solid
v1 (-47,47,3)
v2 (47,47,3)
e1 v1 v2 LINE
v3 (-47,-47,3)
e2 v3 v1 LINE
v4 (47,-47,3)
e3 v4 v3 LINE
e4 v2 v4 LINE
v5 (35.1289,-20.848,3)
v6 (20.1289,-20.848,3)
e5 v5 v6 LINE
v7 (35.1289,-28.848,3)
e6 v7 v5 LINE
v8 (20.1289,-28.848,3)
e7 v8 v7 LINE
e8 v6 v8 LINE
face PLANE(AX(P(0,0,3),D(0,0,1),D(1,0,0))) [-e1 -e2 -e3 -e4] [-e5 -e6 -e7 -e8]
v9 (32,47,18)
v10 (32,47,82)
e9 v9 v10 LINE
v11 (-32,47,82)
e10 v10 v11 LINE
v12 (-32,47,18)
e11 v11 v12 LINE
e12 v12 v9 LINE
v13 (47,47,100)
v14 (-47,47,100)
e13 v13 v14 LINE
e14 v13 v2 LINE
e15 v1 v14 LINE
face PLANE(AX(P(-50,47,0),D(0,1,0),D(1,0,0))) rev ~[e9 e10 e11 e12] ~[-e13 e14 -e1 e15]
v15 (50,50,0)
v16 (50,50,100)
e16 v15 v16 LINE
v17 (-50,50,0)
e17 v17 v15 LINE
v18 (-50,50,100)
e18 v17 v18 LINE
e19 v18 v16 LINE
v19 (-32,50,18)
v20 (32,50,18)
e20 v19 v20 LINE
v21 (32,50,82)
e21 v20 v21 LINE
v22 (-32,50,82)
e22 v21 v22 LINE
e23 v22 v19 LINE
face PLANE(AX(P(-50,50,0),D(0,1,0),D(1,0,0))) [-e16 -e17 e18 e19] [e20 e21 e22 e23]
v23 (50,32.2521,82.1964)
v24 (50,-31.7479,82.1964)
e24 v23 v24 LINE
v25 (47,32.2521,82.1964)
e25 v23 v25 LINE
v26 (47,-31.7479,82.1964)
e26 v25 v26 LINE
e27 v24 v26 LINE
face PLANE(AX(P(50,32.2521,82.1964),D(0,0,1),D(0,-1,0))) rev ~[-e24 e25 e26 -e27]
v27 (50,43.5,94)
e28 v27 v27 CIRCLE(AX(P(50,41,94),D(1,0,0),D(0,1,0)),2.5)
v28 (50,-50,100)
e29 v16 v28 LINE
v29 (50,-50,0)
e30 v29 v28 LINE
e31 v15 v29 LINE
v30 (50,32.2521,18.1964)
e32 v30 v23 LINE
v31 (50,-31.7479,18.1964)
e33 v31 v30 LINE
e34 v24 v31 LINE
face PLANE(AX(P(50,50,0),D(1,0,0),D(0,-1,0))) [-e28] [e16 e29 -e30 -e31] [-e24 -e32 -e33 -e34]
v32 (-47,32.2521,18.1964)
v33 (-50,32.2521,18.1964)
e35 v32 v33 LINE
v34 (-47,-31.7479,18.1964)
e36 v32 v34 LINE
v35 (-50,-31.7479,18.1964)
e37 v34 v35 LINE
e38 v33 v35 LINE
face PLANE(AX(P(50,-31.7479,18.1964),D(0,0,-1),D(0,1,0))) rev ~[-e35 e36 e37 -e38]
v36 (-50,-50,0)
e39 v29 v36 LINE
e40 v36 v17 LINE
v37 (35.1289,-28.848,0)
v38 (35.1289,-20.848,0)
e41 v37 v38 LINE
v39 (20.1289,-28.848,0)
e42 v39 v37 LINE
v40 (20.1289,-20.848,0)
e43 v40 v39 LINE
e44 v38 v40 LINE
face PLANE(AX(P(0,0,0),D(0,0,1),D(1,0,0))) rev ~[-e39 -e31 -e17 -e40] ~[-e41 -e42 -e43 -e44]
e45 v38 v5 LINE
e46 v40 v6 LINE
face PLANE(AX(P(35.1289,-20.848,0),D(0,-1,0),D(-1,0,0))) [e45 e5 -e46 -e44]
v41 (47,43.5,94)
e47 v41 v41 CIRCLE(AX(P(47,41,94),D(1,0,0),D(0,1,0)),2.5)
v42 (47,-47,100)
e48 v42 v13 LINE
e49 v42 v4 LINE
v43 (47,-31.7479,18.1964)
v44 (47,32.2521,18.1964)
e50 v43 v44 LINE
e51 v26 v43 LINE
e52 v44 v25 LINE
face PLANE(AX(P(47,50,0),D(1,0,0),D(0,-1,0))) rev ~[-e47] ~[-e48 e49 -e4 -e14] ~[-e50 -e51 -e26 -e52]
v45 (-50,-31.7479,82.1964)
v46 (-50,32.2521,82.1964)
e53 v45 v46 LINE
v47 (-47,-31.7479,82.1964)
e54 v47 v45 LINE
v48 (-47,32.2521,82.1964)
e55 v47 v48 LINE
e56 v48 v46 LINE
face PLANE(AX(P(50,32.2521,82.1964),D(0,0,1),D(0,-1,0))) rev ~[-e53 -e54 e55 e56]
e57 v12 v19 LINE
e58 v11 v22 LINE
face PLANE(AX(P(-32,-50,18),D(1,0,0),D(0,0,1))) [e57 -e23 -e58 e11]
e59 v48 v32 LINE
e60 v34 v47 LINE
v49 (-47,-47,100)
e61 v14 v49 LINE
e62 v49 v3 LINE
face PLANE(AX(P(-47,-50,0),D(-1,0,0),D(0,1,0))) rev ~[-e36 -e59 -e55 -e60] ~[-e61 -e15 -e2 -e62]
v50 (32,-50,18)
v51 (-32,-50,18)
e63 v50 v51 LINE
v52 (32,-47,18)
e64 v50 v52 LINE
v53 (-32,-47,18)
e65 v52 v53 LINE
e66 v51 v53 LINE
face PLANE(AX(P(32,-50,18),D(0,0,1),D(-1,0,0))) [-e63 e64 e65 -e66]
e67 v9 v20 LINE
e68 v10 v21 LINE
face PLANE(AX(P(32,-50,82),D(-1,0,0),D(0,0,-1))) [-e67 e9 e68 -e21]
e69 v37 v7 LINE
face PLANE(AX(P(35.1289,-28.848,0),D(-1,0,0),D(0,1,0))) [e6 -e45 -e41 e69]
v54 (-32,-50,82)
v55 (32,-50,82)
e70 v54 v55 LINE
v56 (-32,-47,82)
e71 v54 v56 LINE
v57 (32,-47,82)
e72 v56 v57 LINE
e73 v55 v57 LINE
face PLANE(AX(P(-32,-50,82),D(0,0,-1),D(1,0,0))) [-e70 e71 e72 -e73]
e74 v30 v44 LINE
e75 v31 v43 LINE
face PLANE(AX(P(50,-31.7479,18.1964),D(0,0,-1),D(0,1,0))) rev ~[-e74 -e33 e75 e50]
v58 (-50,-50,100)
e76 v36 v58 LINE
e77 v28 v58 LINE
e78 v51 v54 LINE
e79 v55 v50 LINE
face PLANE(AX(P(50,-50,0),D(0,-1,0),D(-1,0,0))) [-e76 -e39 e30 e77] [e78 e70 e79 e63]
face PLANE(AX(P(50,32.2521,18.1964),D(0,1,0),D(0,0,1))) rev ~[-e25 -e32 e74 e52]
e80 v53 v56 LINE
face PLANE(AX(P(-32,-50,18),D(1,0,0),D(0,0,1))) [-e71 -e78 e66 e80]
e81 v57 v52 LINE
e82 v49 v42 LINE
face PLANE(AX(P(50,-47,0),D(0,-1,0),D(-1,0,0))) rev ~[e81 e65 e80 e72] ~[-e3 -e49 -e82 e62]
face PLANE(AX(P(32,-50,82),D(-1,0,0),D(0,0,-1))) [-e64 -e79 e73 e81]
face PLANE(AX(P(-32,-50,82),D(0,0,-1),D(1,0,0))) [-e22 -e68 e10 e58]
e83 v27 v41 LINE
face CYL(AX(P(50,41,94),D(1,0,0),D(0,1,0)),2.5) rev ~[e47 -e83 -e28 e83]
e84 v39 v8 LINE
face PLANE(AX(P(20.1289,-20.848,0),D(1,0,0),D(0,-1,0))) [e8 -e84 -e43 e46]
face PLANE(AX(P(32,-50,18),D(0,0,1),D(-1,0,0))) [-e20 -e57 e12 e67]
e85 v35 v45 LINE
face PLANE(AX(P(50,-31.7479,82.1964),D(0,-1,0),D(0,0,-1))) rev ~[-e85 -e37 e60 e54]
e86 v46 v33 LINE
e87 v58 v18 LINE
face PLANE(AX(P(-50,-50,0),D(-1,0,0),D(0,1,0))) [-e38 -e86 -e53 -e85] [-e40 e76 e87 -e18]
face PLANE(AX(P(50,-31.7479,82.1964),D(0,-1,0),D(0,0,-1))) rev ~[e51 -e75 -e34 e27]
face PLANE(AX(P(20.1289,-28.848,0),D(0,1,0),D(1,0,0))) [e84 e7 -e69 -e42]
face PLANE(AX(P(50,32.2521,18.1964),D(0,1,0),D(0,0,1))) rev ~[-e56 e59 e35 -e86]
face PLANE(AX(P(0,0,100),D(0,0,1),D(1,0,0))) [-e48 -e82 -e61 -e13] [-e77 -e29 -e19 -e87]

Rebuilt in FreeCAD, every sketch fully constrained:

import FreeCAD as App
import Part
import Sketcher


def faces_at(feature, points):
    """Names of the faces that lie closest to the given points."""
    faces = feature.Shape.Faces
    near = lambda p: min(range(len(faces)), key=lambda i: faces[i].distToShape(Part.Vertex(*p))[0])
    return sorted({f"Face{near(p) + 1}" for p in points})

doc = App.newDocument("Part")
body = doc.addObject("PartDesign::Body", "Body")

# Sketch on XY plane
sketch1 = body.newObject("Sketcher::SketchObject", "Sketch")
sketch1.AttachmentSupport = (doc.getObject("XY_Plane"), [""])
sketch1.MapMode = "FlatFace"
sketch1.addGeometry([
    Part.LineSegment(App.Vector(50, 50, 0), App.Vector(-50, 50, 0)),
    Part.LineSegment(App.Vector(-50, 50, 0), App.Vector(-50, -50, 0)),
    Part.LineSegment(App.Vector(-50, -50, 0), App.Vector(50, -50, 0)),
    Part.LineSegment(App.Vector(50, -50, 0), App.Vector(50, 50, 0)),
], False)
sketch1.addConstraint([
    Sketcher.Constraint("Coincident", 0, 2, 1, 1),
    Sketcher.Constraint("Coincident", 1, 2, 2, 1),
    Sketcher.Constraint("Coincident", 2, 2, 3, 1),
    Sketcher.Constraint("Coincident", 3, 2, 0, 1),
    Sketcher.Constraint("Horizontal", 0),
    Sketcher.Constraint("Vertical", 1),
    Sketcher.Constraint("Horizontal", 2),
    Sketcher.Constraint("Vertical", 3),
    Sketcher.Constraint("Symmetric", 0, 2, 2, 2, -1, 1),
    Sketcher.Constraint("Equal", 2, 1),
    Sketcher.Constraint("DistanceX", 0, 2, 0, 1, 100.0),
])
pad1 = body.newObject("PartDesign::Pad", "Pad")
pad1.Profile = sketch1
pad1.Length = 100
doc.recompute()

thickness = body.newObject("PartDesign::Thickness", "Thickness")
thickness.Base = (pad1, faces_at(pad1, [(-16.667, 16.667, 100)]))
thickness.Value = 3
thickness.Reversed = True
thickness.Join = "Intersection"

# Sketch on YZ plane
sketch2 = body.newObject("Sketcher::SketchObject", "Sketch001")
sketch2.AttachmentSupport = (doc.getObject("YZ_Plane"), [""])
sketch2.MapMode = "FlatFace"
sketch2.AttachmentOffset = App.Placement(App.Vector(0, 0, 50), App.Rotation())
sketch2.addGeometry([
    Part.LineSegment(App.Vector(32, 18, 0), App.Vector(32, 82, 0)),
    Part.LineSegment(App.Vector(32, 82, 0), App.Vector(-32, 82, 0)),
    Part.LineSegment(App.Vector(-32, 82, 0), App.Vector(-32, 18, 0)),
    Part.LineSegment(App.Vector(-32, 18, 0), App.Vector(32, 18, 0)),
], False)
sketch2.addConstraint([
    Sketcher.Constraint("Coincident", 0, 2, 1, 1),
    Sketcher.Constraint("Coincident", 1, 2, 2, 1),
    Sketcher.Constraint("Coincident", 2, 2, 3, 1),
    Sketcher.Constraint("Coincident", 3, 2, 0, 1),
    Sketcher.Constraint("Vertical", 0),
    Sketcher.Constraint("Horizontal", 1),
    Sketcher.Constraint("Vertical", 2),
    Sketcher.Constraint("Horizontal", 3),
    Sketcher.Constraint("Equal", 3, 0),
    Sketcher.Constraint("DistanceX", 1, 2, 1, 1, 64.0),
    Sketcher.Constraint("DistanceX", -1, 1, 0, 2, 32.252),
    Sketcher.Constraint("DistanceY", -1, 1, 0, 2, 82.1964),
])
pocket1 = body.newObject("PartDesign::Pocket", "Pocket")
pocket1.Profile = sketch2
pocket1.Type = "ThroughAll"

# Sketch on XZ plane
sketch3 = body.newObject("Sketcher::SketchObject", "Sketch002")
sketch3.AttachmentSupport = (doc.getObject("XZ_Plane"), [""])
sketch3.MapMode = "FlatFace"
sketch3.AttachmentOffset = App.Placement(App.Vector(0, 0, 50), App.Rotation())
sketch3.addGeometry([
    Part.LineSegment(App.Vector(32, 82, 0), App.Vector(-32, 82, 0)),
    Part.LineSegment(App.Vector(-32, 82, 0), App.Vector(-32, 18, 0)),
    Part.LineSegment(App.Vector(-32, 18, 0), App.Vector(32, 18, 0)),
    Part.LineSegment(App.Vector(32, 18, 0), App.Vector(32, 82, 0)),
], False)
sketch3.addConstraint([
    Sketcher.Constraint("Coincident", 0, 2, 1, 1),
    Sketcher.Constraint("Coincident", 1, 2, 2, 1),
    Sketcher.Constraint("Coincident", 2, 2, 3, 1),
    Sketcher.Constraint("Coincident", 3, 2, 0, 1),
    Sketcher.Constraint("Horizontal", 0),
    Sketcher.Constraint("Vertical", 1),
    Sketcher.Constraint("Horizontal", 2),
    Sketcher.Constraint("Vertical", 3),
    Sketcher.Constraint("Equal", 2, 1),
    Sketcher.Constraint("DistanceX", 0, 2, 0, 1, 64.0),
    Sketcher.Constraint("DistanceX", 0, 2, -1, 1, 32.0),
    Sketcher.Constraint("DistanceY", -1, 1, 0, 2, 82.0),
])
pocket2 = body.newObject("PartDesign::Pocket", "Pocket001")
pocket2.Profile = sketch3
pocket2.Length = 110

# Sketch on XY plane
sketch4 = body.newObject("Sketcher::SketchObject", "Sketch003")
sketch4.AttachmentSupport = (doc.getObject("XY_Plane"), [""])
sketch4.MapMode = "FlatFace"
sketch4.addGeometry([
    Part.LineSegment(App.Vector(35, -29, 0), App.Vector(35, -21, 0)),
    Part.LineSegment(App.Vector(35, -21, 0), App.Vector(20, -21, 0)),
    Part.LineSegment(App.Vector(20, -21, 0), App.Vector(20, -29, 0)),
    Part.LineSegment(App.Vector(20, -29, 0), App.Vector(35, -29, 0)),
], False)
sketch4.addConstraint([
    Sketcher.Constraint("Coincident", 0, 2, 1, 1),
    Sketcher.Constraint("Coincident", 1, 2, 2, 1),
    Sketcher.Constraint("Coincident", 2, 2, 3, 1),
    Sketcher.Constraint("Coincident", 3, 2, 0, 1),
    Sketcher.Constraint("Vertical", 0),
    Sketcher.Constraint("Horizontal", 1),
    Sketcher.Constraint("Vertical", 2),
    Sketcher.Constraint("Horizontal", 3),
    Sketcher.Constraint("DistanceX", 1, 2, 1, 1, 15.0),
    Sketcher.Constraint("DistanceY", 0, 1, 0, 2, 8.0),
    Sketcher.Constraint("DistanceX", -1, 1, 0, 2, 35.129),
    Sketcher.Constraint("DistanceY", 0, 2, -1, 1, 20.848),
])
pocket3 = body.newObject("PartDesign::Pocket", "Pocket002")
pocket3.Profile = sketch4
pocket3.Length = 3
pocket3.Reversed = True

# Sketch on YZ plane
sketch5 = body.newObject("Sketcher::SketchObject", "Sketch004")
sketch5.AttachmentSupport = (doc.getObject("YZ_Plane"), [""])
sketch5.MapMode = "FlatFace"
sketch5.AttachmentOffset = App.Placement(App.Vector(0, 0, 50), App.Rotation())
sketch5.addGeometry(Part.Circle(App.Vector(41, 94, 0), App.Vector(0, 0, 1), 2.5), False)
sketch5.addConstraint([
    Sketcher.Constraint("Diameter", 0, 5.0),
    Sketcher.Constraint("DistanceX", -1, 1, 0, 3, 41.0),
    Sketcher.Constraint("DistanceY", -1, 1, 0, 3, 94.0),
])
pocket4 = body.newObject("PartDesign::Pocket", "Pocket003")
pocket4.Profile = sketch5
pocket4.Length = 3

doc.recompute()
